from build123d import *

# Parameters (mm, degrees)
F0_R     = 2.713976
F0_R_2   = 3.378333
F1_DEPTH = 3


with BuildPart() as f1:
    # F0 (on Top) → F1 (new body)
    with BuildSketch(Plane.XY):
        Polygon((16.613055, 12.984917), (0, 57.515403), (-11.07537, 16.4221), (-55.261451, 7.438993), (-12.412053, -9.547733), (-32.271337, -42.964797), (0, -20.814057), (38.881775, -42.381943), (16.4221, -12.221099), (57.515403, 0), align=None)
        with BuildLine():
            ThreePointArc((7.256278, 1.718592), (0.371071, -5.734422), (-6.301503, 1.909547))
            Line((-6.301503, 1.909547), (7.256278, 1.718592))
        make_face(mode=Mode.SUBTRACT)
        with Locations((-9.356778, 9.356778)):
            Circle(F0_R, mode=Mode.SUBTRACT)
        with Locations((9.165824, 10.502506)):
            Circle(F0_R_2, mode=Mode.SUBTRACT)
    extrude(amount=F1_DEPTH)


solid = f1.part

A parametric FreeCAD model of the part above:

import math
import FreeCAD as App
import Part
import Sketcher

V = App.Vector
Q = App.Units.Quantity


def add_polygon(sketch, points):
    """Adds a closed chain of lines whose ends are joined by coincident constraints."""
    first, n = sketch.GeometryCount, len(points)
    for a, b in zip(points, points[1:] + points[:1]):
        sketch.addGeometry(Part.LineSegment(App.Vector(*a, 0), App.Vector(*b, 0)), False)
    for i in range(n):
        sketch.addConstraint(Sketcher.Constraint("Coincident", first + i, 2, first + (i + 1) % n, 1))

doc = App.newDocument("Part")
body = doc.addObject("PartDesign::Body", "Body")

# Sketch on XY plane
sketch1 = doc.addObject("Sketcher::SketchObject", "Sketch")
body.addObject(sketch1)
sketch1.AttachmentSupport = (doc.XY_Plane, [""])
sketch1.MapMode = "FlatFace"
add_polygon(sketch1, [(16.6, 13), (0, 57.5), (-11.1, 16.4), (-55.3, 7.4), (-12.4, -9.5), (-32.3, -43), (0, -20.8), (38.9, -42.4), (16.4, -12.2), (57.5, 0)])  # lines 0-9
sketch1.addGeometry(Part.LineSegment(V(-6.3, 1.9, 0), V(7.3, 1.7, 0)), False)  # 10
sketch1.addGeometry(Part.ArcOfCircle(Part.Circle(V(0.5, 1.1, 0), V(0, 0, 1), 6.8), math.radians(173), math.radians(365)), False)  # 11
sketch1.addGeometry(Part.Circle(V(-9.4, 9.4, 0), V(0, 0, 1), 2.7), False)  # 12
sketch1.addGeometry(Part.Circle(V(9.2, 10.5, 0), V(0, 0, 1), 3.4), False)  # 13
sketch1.addConstraint(Sketcher.Constraint("Coincident", 10, 1, 11, 1))
sketch1.addConstraint(Sketcher.Constraint("Coincident", 11, 2, 10, 2))
sketch1.addConstraint(Sketcher.Constraint("PointOnObject", 0, 2, -2))
sketch1.addConstraint(Sketcher.Constraint("PointOnObject", 5, 2, -2))
sketch1.addConstraint(Sketcher.Constraint("PointOnObject", 8, 2, -1))
sketch1.addConstraint(Sketcher.Constraint("Radius", 11, Q("6.818799 mm")))
sketch1.addConstraint(Sketcher.Constraint("Diameter", 12, Q("5.427952 mm")))
sketch1.addConstraint(Sketcher.Constraint("Diameter", 13, Q("6.756666 mm")))
sketch1.addConstraint(Sketcher.Constraint("DistanceX", 11, 3, 7, 2, Q("15.954999 mm")))
sketch1.addConstraint(Sketcher.Constraint("Distance", 7, Q("37.604701 mm")))
sketch1.addConstraint(Sketcher.Constraint("DistanceX", -1, 1, 11, 3, Q("0.467101 mm")))
sketch1.addConstraint(Sketcher.Constraint("DistanceY", -1, 1, 11, 3, Q("1.083701 mm")))
sketch1.addConstraint(Sketcher.Constraint("DistanceY", -1, 1, 1, 2, Q("16.4221 mm")))
sketch1.addConstraint(Sketcher.Constraint("DistanceY", 7, 2, -1, 1, Q("12.221099 mm")))
sketch1.addConstraint(Sketcher.Constraint("DistanceX", 12, 3, 13, 3, Q("18.522602 mm")))
sketch1.addConstraint(Sketcher.Constraint("Distance", 4, Q("38.872758 mm")))
sketch1.addConstraint(Sketcher.Constraint("Distance", 5, Q("39.141978 mm")))
sketch1.addConstraint(Sketcher.Constraint("DistanceX", 1, 2, -1, 1, Q("11.07537 mm")))
sketch1.addConstraint(Sketcher.Constraint("DistanceX", 2, 2, -1, 1, Q("55.261451 mm")))
sketch1.addConstraint(Sketcher.Constraint("DistanceY", -1, 1, 11, 2, Q("1.718592 mm")))
sketch1.addConstraint(Sketcher.Constraint("DistanceX", 12, 3, 11, 3, Q("9.823879 mm")))
sketch1.addConstraint(Sketcher.Constraint("DistanceY", 12, 3, 13, 3, Q("1.145728 mm")))
sketch1.addConstraint(Sketcher.Constraint("DistanceY", 2, 2, 0, 2, Q("50.07641 mm")))
sketch1.addConstraint(Sketcher.Constraint("DistanceY", 3, 2, 12, 3, Q("18.904511 mm")))
sketch1.addConstraint(Sketcher.Constraint("DistanceY", 4, 2, 2, 2, Q("50.40379 mm")))
sketch1.addConstraint(Sketcher.Constraint("DistanceX", 4, 2, 12, 3, Q("22.914559 mm")))
sketch1.addConstraint(Sketcher.Constraint("DistanceX", 13, 3, 6, 2, Q("29.715951 mm")))
sketch1.addConstraint(Sketcher.Constraint("DistanceY", 6, 2, 13, 3, Q("52.884449 mm")))
sketch1.addConstraint(Sketcher.Constraint("DistanceX", 6, 2, 8, 2, Q("18.633628 mm")))
sketch1.addConstraint(Sketcher.Constraint("DistanceX", 13, 3, 9, 2, Q("7.447231 mm")))
sketch1.addConstraint(Sketcher.Constraint("DistanceY", 13, 3, 9, 2, Q("2.482411 mm")))
sketch1.addConstraint(Sketcher.Constraint("DistanceY", 10, 1, 12, 3, Q("7.447231 mm")))
sketch1.addConstraint(Sketcher.Constraint("DistanceX", 3, 2, 10, 1, Q("6.11055 mm")))
pad1 = doc.addObject("PartDesign::Pad", "Pad")
body.addObject(pad1)
pad1.Profile = sketch1
pad1.Length = 3

doc.recompute()
